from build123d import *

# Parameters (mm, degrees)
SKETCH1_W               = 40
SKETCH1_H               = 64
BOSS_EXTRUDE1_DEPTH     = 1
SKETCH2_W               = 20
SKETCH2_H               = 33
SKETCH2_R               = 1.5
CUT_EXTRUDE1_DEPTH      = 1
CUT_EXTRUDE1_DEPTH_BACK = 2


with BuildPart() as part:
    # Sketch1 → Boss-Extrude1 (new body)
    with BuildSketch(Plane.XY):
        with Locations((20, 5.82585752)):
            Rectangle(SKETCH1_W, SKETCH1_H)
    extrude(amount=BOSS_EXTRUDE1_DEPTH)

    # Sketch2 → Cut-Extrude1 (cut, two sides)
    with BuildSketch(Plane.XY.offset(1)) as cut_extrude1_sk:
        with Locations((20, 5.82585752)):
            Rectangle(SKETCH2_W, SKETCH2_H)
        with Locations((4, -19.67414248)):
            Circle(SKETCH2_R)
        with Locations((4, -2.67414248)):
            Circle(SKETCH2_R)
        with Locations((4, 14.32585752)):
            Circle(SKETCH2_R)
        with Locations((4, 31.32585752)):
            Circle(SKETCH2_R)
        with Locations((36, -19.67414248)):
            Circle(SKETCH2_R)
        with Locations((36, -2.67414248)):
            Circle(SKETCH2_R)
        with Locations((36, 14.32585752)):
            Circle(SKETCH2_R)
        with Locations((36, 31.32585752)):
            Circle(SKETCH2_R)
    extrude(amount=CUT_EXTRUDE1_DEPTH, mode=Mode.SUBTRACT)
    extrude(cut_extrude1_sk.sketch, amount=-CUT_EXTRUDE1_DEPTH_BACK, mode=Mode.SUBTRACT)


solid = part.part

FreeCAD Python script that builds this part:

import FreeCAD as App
import Part
import Sketcher

V = App.Vector
Q = App.Units.Quantity


def add_polygon(sketch, points):
    """Adds a closed chain of lines whose ends are joined by coincident constraints."""
    first, n = sketch.GeometryCount, len(points)
    for a, b in zip(points, points[1:] + points[:1]):
        sketch.addGeometry(Part.LineSegment(App.Vector(*a, 0), App.Vector(*b, 0)), False)
    for i in range(n):
        sketch.addConstraint(Sketcher.Constraint("Coincident", first + i, 2, first + (i + 1) % n, 1))

doc = App.newDocument("Part")
body = doc.addObject("PartDesign::Body", "Body")

sketch1 = doc.addObject("Sketcher::SketchObject", "Sketch")
body.addObject(sketch1)
sketch1.AttachmentSupport = (doc.XY_Plane, [""])
sketch1.MapMode = "FlatFace"
add_polygon(sketch1, [(0, 38), (0, -26), (40, -26), (40, 38)])
sketch1.addConstraint(Sketcher.Constraint("Vertical", 0))
sketch1.addConstraint(Sketcher.Constraint("Horizontal", 1))
sketch1.addConstraint(Sketcher.Constraint("Vertical", 2))
sketch1.addConstraint(Sketcher.Constraint("Horizontal", 3))
sketch1.addConstraint(Sketcher.Constraint("PointOnObject", 0, 2, -2))
sketch1.addConstraint(Sketcher.Constraint("DistanceX", 1, 1, 1, 2, Q("40 mm")))
sketch1.addConstraint(Sketcher.Constraint("DistanceY", 0, 2, 0, 1, Q("64 mm")))
sketch1.addConstraint(Sketcher.Constraint("DistanceY", 0, 2, -1, 1, Q("26.174142 mm")))
pad1 = doc.addObject("PartDesign::Pad", "Pad")
body.addObject(pad1)
pad1.Profile = sketch1
pad1.Length = 1

sketch2 = doc.addObject("Sketcher::SketchObject", "Sketch001")
body.addObject(sketch2)
sketch2.AttachmentSupport = (doc.XY_Plane, [""])
sketch2.MapMode = "FlatFace"
sketch2.AttachmentOffset = App.Placement(V(0, 0, 1), App.Rotation())
add_polygon(sketch2, [(10, 22.3), (10, -10.7), (30, -10.7), (30, 22.3)])
sketch2.addGeometry(Part.Circle(V(4, -19.7, 0), V(0, 0, 1), 1.5), False)
sketch2.addGeometry(Part.Circle(V(4, -2.7, 0), V(0, 0, 1), 1.5), False)
sketch2.addGeometry(Part.Circle(V(4, 14.3, 0), V(0, 0, 1), 1.5), False)
sketch2.addGeometry(Part.Circle(V(4, 31.3, 0), V(0, 0, 1), 1.5), False)
sketch2.addGeometry(Part.Circle(V(36, -19.7, 0), V(0, 0, 1), 1.5), False)
sketch2.addGeometry(Part.Circle(V(36, -2.7, 0), V(0, 0, 1), 1.5), False)
sketch2.addGeometry(Part.Circle(V(36, 14.3, 0), V(0, 0, 1), 1.5), False)
sketch2.addGeometry(Part.Circle(V(36, 31.3, 0), V(0, 0, 1), 1.5), False)
sketch2.addConstraint(Sketcher.Constraint("Vertical", 0))
sketch2.addConstraint(Sketcher.Constraint("Horizontal", 1))
sketch2.addConstraint(Sketcher.Constraint("Vertical", 2))
sketch2.addConstraint(Sketcher.Constraint("Horizontal", 3))
sketch2.addConstraint(Sketcher.Constraint("Equal", 4, 5))
sketch2.addConstraint(Sketcher.Constraint("Equal", 5, 6))
sketch2.addConstraint(Sketcher.Constraint("Equal", 6, 7))
sketch2.addConstraint(Sketcher.Constraint("Equal", 7, 8))
sketch2.addConstraint(Sketcher.Constraint("Equal", 8, 9))
sketch2.addConstraint(Sketcher.Constraint("Equal", 9, 10))
sketch2.addConstraint(Sketcher.Constraint("Equal", 10, 11))
sketch2.addConstraint(Sketcher.Constraint("Horizontal", 4, 3, 8, 3))
sketch2.addConstraint(Sketcher.Constraint("Horizontal", 5, 3, 9, 3))
sketch2.addConstraint(Sketcher.Constraint("Horizontal", 6, 3, 10, 3))
sketch2.addConstraint(Sketcher.Constraint("Horizontal", 7, 3, 11, 3))
sketch2.addConstraint(Sketcher.Constraint("Vertical", 4, 3, 5, 3))
sketch2.addConstraint(Sketcher.Constraint("Vertical", 5, 3, 6, 3))
sketch2.addConstraint(Sketcher.Constraint("Vertical", 6, 3, 7, 3))
sketch2.addConstraint(Sketcher.Constraint("Vertical", 8, 3, 9, 3))
sketch2.addConstraint(Sketcher.Constraint("Vertical", 9, 3, 10, 3))
sketch2.addConstraint(Sketcher.Constraint("Vertical", 10, 3, 11, 3))
sketch2.addConstraint(Sketcher.Constraint("Diameter", 4, Q("3 mm")))
sketch2.addConstraint(Sketcher.Constraint("DistanceX", 1, 1, 1, 2, Q("20 mm")))
sketch2.addConstraint(Sketcher.Constraint("DistanceY", 0, 2, 0, 1, Q("33 mm")))
sketch2.addConstraint(Sketcher.Constraint("DistanceX", -1, 1, 4, 3, Q("4 mm")))
sketch2.addConstraint(Sketcher.Constraint("DistanceX", -1, 1, 8, 3, Q("36 mm")))
sketch2.addConstraint(Sketcher.Constraint("DistanceX", -1, 1, 0, 2, Q("10 mm")))
sketch2.addConstraint(Sketcher.Constraint("DistanceY", 4, 3, 5, 3, Q("17 mm")))
sketch2.addConstraint(Sketcher.Constraint("DistanceY", 5, 3, 6, 3, Q("17 mm")))
sketch2.addConstraint(Sketcher.Constraint("DistanceY", 6, 3, 7, 3, Q("17 mm")))
sketch2.addConstraint(Sketcher.Constraint("DistanceY", 0, 2, 5, 3, Q("8 mm")))
sketch2.addConstraint(Sketcher.Constraint("DistanceY", 4, 3, -1, 1, Q("19.674142 mm")))
pocket1 = doc.addObject("PartDesign::Pocket", "Pocket")
body.addObject(pocket1)
pocket1.Profile = sketch2
pocket1.Type = "ThroughAll"
pocket1.Midplane = True

doc.recompute()
